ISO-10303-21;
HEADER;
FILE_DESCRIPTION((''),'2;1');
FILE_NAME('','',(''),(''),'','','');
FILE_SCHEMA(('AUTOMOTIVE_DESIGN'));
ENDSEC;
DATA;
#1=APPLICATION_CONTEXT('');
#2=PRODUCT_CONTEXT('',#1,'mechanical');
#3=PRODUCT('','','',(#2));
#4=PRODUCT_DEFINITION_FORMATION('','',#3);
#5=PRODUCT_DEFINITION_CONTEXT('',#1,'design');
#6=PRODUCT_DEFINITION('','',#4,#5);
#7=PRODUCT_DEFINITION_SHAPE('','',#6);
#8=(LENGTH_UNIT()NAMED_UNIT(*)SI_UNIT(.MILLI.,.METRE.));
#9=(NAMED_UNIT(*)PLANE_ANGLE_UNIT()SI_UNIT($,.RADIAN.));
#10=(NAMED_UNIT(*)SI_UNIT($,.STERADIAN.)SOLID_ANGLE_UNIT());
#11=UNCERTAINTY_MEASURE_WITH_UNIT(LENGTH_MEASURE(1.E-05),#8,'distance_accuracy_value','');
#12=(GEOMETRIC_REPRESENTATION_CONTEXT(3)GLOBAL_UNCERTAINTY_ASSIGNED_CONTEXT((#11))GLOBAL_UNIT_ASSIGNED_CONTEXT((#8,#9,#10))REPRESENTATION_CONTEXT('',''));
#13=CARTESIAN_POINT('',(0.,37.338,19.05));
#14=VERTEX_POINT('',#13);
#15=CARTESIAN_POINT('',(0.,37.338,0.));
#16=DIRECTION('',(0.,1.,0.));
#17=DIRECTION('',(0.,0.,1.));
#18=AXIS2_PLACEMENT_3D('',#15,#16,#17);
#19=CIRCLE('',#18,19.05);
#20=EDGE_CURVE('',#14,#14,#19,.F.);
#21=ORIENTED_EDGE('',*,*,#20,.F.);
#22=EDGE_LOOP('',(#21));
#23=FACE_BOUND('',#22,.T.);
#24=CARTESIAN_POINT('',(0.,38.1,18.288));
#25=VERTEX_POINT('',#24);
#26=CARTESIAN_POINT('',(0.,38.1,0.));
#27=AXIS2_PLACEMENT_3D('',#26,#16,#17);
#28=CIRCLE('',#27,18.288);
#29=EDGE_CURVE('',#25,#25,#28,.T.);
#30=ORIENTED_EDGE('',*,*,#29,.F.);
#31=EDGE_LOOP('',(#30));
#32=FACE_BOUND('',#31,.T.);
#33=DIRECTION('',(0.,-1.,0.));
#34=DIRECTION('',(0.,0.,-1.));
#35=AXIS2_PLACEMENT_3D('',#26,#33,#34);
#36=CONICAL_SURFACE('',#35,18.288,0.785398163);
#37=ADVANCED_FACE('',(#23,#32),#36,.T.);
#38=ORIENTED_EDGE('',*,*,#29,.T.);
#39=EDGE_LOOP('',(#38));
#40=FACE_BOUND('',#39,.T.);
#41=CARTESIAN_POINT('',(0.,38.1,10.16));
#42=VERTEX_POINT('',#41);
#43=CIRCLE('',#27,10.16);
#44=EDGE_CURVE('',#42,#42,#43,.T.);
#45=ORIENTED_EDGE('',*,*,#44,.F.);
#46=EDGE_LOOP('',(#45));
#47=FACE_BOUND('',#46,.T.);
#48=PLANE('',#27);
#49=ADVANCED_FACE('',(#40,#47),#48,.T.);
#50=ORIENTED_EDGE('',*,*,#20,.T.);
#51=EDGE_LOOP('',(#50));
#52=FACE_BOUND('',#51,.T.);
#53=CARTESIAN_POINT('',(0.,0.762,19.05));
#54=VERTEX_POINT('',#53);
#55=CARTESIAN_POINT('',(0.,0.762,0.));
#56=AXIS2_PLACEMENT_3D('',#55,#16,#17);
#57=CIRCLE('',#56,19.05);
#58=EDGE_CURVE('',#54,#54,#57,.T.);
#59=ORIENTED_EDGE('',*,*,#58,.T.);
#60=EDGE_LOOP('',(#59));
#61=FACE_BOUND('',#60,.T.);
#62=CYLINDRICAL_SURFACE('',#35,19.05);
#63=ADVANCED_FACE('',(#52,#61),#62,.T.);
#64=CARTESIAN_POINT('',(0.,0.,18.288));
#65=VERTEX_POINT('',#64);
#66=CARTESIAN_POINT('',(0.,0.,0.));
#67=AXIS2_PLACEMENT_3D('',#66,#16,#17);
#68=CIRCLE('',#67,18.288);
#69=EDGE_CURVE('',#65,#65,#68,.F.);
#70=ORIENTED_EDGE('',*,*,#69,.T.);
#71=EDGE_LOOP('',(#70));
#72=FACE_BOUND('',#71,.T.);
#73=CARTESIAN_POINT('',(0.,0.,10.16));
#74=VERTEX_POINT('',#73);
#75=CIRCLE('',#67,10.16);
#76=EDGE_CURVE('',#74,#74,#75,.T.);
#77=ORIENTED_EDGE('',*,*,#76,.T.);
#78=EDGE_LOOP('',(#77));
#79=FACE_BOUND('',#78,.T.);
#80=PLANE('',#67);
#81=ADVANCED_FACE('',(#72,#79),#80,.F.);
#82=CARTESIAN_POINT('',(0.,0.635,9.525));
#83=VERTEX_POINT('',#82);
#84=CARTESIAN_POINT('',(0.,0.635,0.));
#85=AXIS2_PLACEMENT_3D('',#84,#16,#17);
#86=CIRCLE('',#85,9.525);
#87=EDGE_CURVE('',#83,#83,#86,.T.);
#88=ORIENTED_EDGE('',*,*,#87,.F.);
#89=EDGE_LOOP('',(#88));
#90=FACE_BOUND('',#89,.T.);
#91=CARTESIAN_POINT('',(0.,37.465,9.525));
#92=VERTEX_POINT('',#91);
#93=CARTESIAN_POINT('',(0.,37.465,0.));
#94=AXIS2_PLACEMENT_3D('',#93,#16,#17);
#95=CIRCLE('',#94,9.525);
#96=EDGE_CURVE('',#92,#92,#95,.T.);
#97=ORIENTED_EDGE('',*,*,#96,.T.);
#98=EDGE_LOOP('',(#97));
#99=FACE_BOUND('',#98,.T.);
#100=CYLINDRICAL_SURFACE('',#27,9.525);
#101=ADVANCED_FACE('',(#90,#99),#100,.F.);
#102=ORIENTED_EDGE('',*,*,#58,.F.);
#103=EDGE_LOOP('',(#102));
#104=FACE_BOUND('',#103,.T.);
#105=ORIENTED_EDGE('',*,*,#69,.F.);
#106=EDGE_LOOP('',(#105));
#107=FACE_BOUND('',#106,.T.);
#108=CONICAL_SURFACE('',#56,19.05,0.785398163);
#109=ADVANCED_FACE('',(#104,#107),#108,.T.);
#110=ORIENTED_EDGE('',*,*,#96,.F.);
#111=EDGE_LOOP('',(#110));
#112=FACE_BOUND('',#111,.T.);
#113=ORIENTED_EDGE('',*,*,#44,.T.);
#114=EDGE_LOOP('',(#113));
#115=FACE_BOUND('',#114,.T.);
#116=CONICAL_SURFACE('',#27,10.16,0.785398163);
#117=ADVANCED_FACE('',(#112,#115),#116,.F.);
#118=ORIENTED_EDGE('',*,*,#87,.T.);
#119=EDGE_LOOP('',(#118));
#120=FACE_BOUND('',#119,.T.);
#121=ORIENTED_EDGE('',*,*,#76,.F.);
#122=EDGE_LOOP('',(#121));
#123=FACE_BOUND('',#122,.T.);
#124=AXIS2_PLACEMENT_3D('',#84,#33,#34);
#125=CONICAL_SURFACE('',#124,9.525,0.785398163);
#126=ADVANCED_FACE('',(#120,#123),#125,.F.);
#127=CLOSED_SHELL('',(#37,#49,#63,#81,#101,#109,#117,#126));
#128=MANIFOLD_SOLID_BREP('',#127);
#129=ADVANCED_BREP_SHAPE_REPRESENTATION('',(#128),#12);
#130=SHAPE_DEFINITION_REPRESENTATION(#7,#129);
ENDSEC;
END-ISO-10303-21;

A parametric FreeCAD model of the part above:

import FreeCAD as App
import Part
import Sketcher
Q = App.Units.Quantity


def edges_at(feature, points):
    """Names of the edges that pass closest to the given points."""
    edges = feature.Shape.Edges
    near = lambda p: min(range(len(edges)), key=lambda i: edges[i].distToShape(Part.Vertex(*p))[0])
    return sorted({f"Edge{near(p) + 1}" for p in points})

doc = App.newDocument("Part")
params = doc.addObject("Spreadsheet::Sheet", "Params")
for row, (alias, value) in enumerate([
    ("sketch1_diameter", "1.5 in"),
    ("pad1_length", "1.5 in"),
    ("sketch2_width", "1.5 in"),
    ("sketch2_height", "0.4 in"),
    ("sketch2_width2", "1.45 in"),
    ("groove_angle", "360 deg"),
    ("chamfer_size", "0.03 in"),
], start=1):
    params.set(f"A{row}", alias)
    params.set(f"B{row}", "=" + value)
    params.setAlias(f"B{row}", alias)

body = doc.addObject("PartDesign::Body", "Body")

sketch1 = body.newObject("Sketcher::SketchObject", "Sketch")
sketch1.AttachmentSupport = (doc.getObject("XZ_Plane"), [""])
sketch1.MapMode = "FlatFace"
sketch1.addGeometry(Part.Circle(App.Vector(0, 0, 0), App.Vector(0, 0, 1), 19), False)
sketch1.addConstraint([
    Sketcher.Constraint("Coincident", 0, 3, -1, 1),
    Sketcher.Constraint("Diameter", 0, Q("1.5 in")),
])
sketch1.setExpression("Constraints[1]", "Params.sketch1_diameter")
pad1 = body.newObject("PartDesign::Pad", "Pad")
pad1.Profile = sketch1
pad1.setExpression("Length", "Params.pad1_length")
pad1.Reversed = True

sketch2 = body.newObject("Sketcher::SketchObject", "Sketch001")
sketch2.AttachmentSupport = (doc.getObject("YZ_Plane"), [""])
sketch2.MapMode = "FlatFace"
sketch2.addGeometry([
    Part.LineSegment(App.Vector(0, 0, 0), App.Vector(38.1, 0, 0)),
    Part.LineSegment(App.Vector(38.1, 0, 0), App.Vector(38.1, 10.2, 0)),
    Part.LineSegment(App.Vector(38.1, 10.2, 0), App.Vector(37.5, 9.5, 0)),
    Part.LineSegment(App.Vector(37.5, 9.5, 0), App.Vector(0.6, 9.5, 0)),
    Part.LineSegment(App.Vector(0.6, 9.5, 0), App.Vector(0, 10.2, 0)),
    Part.LineSegment(App.Vector(0, 10.2, 0), App.Vector(0, 0, 0)),
], False)
sketch2.addConstraint([
    Sketcher.Constraint("Coincident", 0, 2, 1, 1),
    Sketcher.Constraint("Coincident", 1, 2, 2, 1),
    Sketcher.Constraint("Coincident", 2, 2, 3, 1),
    Sketcher.Constraint("Coincident", 3, 2, 4, 1),
    Sketcher.Constraint("Coincident", 4, 2, 5, 1),
    Sketcher.Constraint("Coincident", 5, 2, 0, 1),
    Sketcher.Constraint("Horizontal", 0),
    Sketcher.Constraint("Vertical", 1),
    Sketcher.Constraint("Horizontal", 3),
    Sketcher.Constraint("Vertical", 5),
    Sketcher.Constraint("Coincident", 5, 2, -1, 1),
    Sketcher.Constraint("Perpendicular", 2, 4),
    Sketcher.Constraint("Horizontal", 1, 2, 4, 2),
    Sketcher.Constraint("Equal", 2, 4),
    Sketcher.Constraint("DistanceX", 0, 1, 0, 2, Q("1.5 in")),
    Sketcher.Constraint("DistanceY", 1, 1, 1, 2, Q("0.4 in")),
    Sketcher.Constraint("DistanceX", 3, 2, 3, 1, Q("1.45 in")),
])
sketch2.setExpression("Constraints[14]", "Params.sketch2_width")
sketch2.setExpression("Constraints[15]", "Params.sketch2_height")
sketch2.setExpression("Constraints[16]", "Params.sketch2_width2")
groove = body.newObject("PartDesign::Groove", "Groove")
groove.Profile = sketch2
groove.ReferenceAxis = (sketch2, ["H_Axis"])
groove.setExpression("Angle", "Params.groove_angle")
doc.recompute()

chamfer = body.newObject("PartDesign::Chamfer", "Chamfer")
chamfer.Base = (groove, edges_at(groove, [(0, 0, -19.05), (0, 38.1, -19.05)]))
chamfer.setExpression("Size", "Params.chamfer_size")

doc.recompute()
